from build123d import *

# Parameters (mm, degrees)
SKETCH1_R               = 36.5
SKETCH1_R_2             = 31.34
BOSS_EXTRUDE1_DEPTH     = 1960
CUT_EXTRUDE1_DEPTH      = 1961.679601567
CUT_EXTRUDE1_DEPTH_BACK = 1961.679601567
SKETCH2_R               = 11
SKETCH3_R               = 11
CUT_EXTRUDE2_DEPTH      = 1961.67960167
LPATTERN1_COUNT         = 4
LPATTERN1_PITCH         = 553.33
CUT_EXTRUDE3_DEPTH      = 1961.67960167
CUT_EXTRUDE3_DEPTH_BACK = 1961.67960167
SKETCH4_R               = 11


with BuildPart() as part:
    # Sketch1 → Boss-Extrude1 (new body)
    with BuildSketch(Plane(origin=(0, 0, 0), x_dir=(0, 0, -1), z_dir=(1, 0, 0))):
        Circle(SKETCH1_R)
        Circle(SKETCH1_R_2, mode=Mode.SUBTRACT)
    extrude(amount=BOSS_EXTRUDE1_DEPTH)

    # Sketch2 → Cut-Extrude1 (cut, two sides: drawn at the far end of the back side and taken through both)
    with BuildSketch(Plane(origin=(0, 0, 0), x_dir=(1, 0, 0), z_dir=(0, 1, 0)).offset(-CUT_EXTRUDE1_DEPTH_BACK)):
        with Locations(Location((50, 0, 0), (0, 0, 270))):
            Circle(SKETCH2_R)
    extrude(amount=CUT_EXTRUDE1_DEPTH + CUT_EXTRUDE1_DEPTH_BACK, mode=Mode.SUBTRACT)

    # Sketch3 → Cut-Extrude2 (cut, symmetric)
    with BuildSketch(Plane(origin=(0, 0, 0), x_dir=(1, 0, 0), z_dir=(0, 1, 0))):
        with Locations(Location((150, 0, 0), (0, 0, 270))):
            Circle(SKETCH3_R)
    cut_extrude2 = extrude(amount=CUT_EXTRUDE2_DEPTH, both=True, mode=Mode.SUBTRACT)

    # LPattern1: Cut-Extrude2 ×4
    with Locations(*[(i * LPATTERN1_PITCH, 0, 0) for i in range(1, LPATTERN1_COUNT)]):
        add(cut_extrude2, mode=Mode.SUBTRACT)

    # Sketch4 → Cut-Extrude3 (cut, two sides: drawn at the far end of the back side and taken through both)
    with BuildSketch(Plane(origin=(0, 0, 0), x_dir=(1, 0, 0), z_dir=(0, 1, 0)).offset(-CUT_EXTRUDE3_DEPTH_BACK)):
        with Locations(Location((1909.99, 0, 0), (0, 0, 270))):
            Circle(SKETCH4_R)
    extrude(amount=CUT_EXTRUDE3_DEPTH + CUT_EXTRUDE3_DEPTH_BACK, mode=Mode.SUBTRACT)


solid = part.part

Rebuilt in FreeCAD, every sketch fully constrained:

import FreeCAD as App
import Part
import Sketcher
Q = App.Units.Quantity

doc = App.newDocument("Part")
body = doc.addObject("PartDesign::Body", "Body")

sketch1 = doc.addObject("Sketcher::SketchObject", "Sketch")
body.addObject(sketch1)
sketch1.AttachmentSupport = (doc.YZ_Plane, [""])
sketch1.MapMode = "FlatFace"
sketch1.addGeometry([
    Part.Circle(App.Vector(0, 0, 0), App.Vector(0, 0, 1), 36),
    Part.Circle(App.Vector(0, 0, 0), App.Vector(0, 0, 1), 31),
], False)
sketch1.addConstraint([
    Sketcher.Constraint("Coincident", 0, 3, -1, 1),
    Sketcher.Constraint("Coincident", 1, 3, -1, 1),
    Sketcher.Constraint("Diameter", 0, Q("73 mm")),
    Sketcher.Constraint("Diameter", 1, Q("62.68 mm")),
])
pad1 = doc.addObject("PartDesign::Pad", "Pad")
body.addObject(pad1)
pad1.Profile = sketch1
pad1.Length = 1960

sketch2 = doc.addObject("Sketcher::SketchObject", "Sketch001")
body.addObject(sketch2)
sketch2.AttachmentSupport = (doc.XZ_Plane, [""])
sketch2.MapMode = "FlatFace"
sketch2.addGeometry(Part.Circle(App.Vector(50, 0, 0), App.Vector(0, 0, 1), 11), False)
sketch2.addConstraint([
    Sketcher.Constraint("PointOnObject", 0, 3, -1),
    Sketcher.Constraint("Diameter", 0, Q("22 mm")),
    Sketcher.Constraint("DistanceX", -1, 1, 0, 3, Q("50 mm")),
])
pocket1 = doc.addObject("PartDesign::Pocket", "Pocket")
body.addObject(pocket1)
pocket1.Profile = sketch2
pocket1.Type = "ThroughAll"
pocket1.Midplane = True

sketch3 = doc.addObject("Sketcher::SketchObject", "Sketch002")
body.addObject(sketch3)
sketch3.AttachmentSupport = (doc.XZ_Plane, [""])
sketch3.MapMode = "FlatFace"
sketch3.addGeometry(Part.Circle(App.Vector(150, 0, 0), App.Vector(0, 0, 1), 11), False)
sketch3.addConstraint([
    Sketcher.Constraint("PointOnObject", 0, 3, -1),
    Sketcher.Constraint("Diameter", 0, Q("22 mm")),
    Sketcher.Constraint("DistanceX", -1, 1, 0, 3, Q("150 mm")),
])
pocket2 = doc.addObject("PartDesign::Pocket", "Pocket001")
body.addObject(pocket2)
pocket2.Profile = sketch3
pocket2.Length = 3923.359203
pocket2.Midplane = True
doc.recompute()

linearpattern = doc.addObject("PartDesign::LinearPattern", "LinearPattern")
body.addObject(linearpattern)
linearpattern.Originals = [pocket2]
linearpattern.Direction = (doc.X_Axis, [""])
linearpattern.Mode = "offset"
linearpattern.Offset = 553.33
linearpattern.Occurrences = 4
body.Tip = linearpattern

sketch4 = doc.addObject("Sketcher::SketchObject", "Sketch003")
body.addObject(sketch4)
sketch4.AttachmentSupport = (doc.XZ_Plane, [""])
sketch4.MapMode = "FlatFace"
sketch4.addGeometry(Part.Circle(App.Vector(1910, 0, 0), App.Vector(0, 0, 1), 11), False)
sketch4.addConstraint([
    Sketcher.Constraint("PointOnObject", 0, 3, -1),
    Sketcher.Constraint("Diameter", 0, Q("22 mm")),
    Sketcher.Constraint("DistanceX", -1, 1, 0, 3, Q("1909.99 mm")),
])
pocket3 = doc.addObject("PartDesign::Pocket", "Pocket002")
body.addObject(pocket3)
pocket3.Profile = sketch4
pocket3.Type = "ThroughAll"
pocket3.Midplane = True

doc.recompute()
